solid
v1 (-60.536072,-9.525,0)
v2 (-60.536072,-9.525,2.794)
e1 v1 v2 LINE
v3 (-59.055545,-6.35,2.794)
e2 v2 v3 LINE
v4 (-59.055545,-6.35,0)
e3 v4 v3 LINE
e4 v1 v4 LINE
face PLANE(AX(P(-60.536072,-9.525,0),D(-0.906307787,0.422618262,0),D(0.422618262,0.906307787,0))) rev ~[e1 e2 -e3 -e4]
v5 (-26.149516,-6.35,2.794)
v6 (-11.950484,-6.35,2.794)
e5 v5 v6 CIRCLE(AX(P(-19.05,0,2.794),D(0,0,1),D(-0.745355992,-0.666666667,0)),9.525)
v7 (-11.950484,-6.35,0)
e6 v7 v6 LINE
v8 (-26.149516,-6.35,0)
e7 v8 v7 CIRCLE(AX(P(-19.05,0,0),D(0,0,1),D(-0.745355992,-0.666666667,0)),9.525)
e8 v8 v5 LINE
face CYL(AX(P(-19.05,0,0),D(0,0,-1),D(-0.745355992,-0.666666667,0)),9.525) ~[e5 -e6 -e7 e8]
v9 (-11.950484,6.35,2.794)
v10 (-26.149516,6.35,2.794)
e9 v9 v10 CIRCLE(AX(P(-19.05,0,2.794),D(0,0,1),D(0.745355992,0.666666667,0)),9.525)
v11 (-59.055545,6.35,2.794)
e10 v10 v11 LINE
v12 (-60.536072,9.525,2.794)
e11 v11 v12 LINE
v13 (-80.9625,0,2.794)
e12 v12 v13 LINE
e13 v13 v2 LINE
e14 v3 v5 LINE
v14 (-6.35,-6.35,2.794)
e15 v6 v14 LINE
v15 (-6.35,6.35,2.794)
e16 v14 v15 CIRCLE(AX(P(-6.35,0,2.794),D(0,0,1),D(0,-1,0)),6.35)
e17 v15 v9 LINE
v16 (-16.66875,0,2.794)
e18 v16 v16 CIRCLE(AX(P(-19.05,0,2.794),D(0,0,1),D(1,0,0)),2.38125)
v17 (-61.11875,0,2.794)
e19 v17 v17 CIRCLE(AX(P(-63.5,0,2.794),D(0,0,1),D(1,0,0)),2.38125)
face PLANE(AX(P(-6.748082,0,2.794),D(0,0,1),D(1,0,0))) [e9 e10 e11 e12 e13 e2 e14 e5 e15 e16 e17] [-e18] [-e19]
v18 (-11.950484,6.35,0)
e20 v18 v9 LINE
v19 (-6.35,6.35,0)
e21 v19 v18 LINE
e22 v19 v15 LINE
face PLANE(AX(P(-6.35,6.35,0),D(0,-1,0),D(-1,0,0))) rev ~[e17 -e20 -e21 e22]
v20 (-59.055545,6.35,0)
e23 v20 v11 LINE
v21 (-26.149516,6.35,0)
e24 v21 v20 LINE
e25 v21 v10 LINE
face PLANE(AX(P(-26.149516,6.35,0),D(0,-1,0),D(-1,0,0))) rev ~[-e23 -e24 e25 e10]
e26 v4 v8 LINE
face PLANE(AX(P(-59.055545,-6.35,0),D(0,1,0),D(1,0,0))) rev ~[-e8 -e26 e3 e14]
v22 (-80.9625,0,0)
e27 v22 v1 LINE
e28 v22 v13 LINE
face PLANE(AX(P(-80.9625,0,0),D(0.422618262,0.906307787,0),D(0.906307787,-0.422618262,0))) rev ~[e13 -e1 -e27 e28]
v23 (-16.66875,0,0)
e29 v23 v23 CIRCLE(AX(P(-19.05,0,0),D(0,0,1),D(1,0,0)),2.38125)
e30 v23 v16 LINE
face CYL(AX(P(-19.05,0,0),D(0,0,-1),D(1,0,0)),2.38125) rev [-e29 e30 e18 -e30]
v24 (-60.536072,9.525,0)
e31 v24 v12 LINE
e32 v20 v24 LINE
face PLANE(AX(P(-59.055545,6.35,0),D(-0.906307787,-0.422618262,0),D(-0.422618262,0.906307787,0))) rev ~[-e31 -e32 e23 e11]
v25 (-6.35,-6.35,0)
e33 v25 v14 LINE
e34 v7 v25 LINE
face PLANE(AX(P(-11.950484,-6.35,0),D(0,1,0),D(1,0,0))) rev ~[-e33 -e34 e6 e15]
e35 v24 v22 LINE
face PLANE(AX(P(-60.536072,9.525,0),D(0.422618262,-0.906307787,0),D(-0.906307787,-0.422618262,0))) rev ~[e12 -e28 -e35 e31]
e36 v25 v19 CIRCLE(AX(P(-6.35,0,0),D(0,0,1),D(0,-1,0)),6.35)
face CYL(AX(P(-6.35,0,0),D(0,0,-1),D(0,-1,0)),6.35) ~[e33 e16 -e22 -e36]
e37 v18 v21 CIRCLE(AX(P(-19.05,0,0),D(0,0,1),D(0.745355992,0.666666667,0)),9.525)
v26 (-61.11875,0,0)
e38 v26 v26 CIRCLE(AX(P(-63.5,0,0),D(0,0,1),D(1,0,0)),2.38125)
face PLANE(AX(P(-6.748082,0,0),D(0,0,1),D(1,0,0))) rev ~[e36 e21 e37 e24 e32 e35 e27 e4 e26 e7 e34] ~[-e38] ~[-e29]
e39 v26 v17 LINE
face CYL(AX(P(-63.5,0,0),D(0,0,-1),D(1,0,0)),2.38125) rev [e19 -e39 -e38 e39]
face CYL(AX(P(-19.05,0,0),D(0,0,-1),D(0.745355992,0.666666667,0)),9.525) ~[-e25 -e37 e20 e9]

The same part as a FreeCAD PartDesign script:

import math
import FreeCAD as App
import Part
import Sketcher

V = App.Vector
Q = App.Units.Quantity

doc = App.newDocument("Part")
body = doc.addObject("PartDesign::Body", "Body")

# Sketch on XY plane
sketch1 = body.newObject("Sketcher::SketchObject", "Sketch")
sketch1.AttachmentSupport = (doc.getObject("XY_Plane"), [""])
sketch1.MapMode = "FlatFace"
sketch1.addGeometry([
    Part.ArcOfCircle(Part.Circle(V(-6.35, 0, 0), V(0, 0, 1), 6.35), math.radians(-90), math.radians(90)),  # 0
    Part.LineSegment(V(-6.35, 6.35, 0), V(-11.950484, 6.35, 0)),  # 1
    Part.ArcOfCircle(Part.Circle(V(-19.05, 0, 0), V(0, 0, 1), 9.525), math.radians(41.810315), math.radians(138.189685)),  # 2
    Part.LineSegment(V(-26.149516, 6.35, 0), V(-59.055545, 6.35, 0)),  # 3
    Part.LineSegment(V(-59.055545, 6.35, 0), V(-60.536072, 9.525, 0)),  # 4
    Part.LineSegment(V(-60.536072, 9.525, 0), V(-80.9625, 0, 0)),  # 5
    Part.LineSegment(V(-80.9625, 0, 0), V(-60.536072, -9.525, 0)),  # 6
    Part.LineSegment(V(-60.536072, -9.525, 0), V(-59.055545, -6.35, 0)),  # 7
    Part.LineSegment(V(-59.055545, -6.35, 0), V(-26.149516, -6.35, 0)),  # 8
    Part.ArcOfCircle(Part.Circle(V(-19.05, 0, 0), V(0, 0, 1), 9.525), math.radians(-138.189685), math.radians(-41.810315)),  # 9
    Part.LineSegment(V(-11.950484, -6.35, 0), V(-6.35, -6.35, 0)),  # 10
    Part.Circle(V(-63.5, 0, 0), V(0, 0, 1), 2.38125),  # 11
    Part.Circle(V(-19.05, 0, 0), V(0, 0, 1), 2.38125),  # 12
], False)
sketch1.addConstraint([
    Sketcher.Constraint("Tangent", 0, 2, 1, 1),
    Sketcher.Constraint("Coincident", 1, 2, 2, 1),
    Sketcher.Constraint("Coincident", 2, 2, 3, 1),
    Sketcher.Constraint("Coincident", 3, 2, 4, 1),
    Sketcher.Constraint("Coincident", 4, 2, 5, 1),
    Sketcher.Constraint("Coincident", 5, 2, 6, 1),
    Sketcher.Constraint("Coincident", 6, 2, 7, 1),
    Sketcher.Constraint("Coincident", 7, 2, 8, 1),
    Sketcher.Constraint("Coincident", 8, 2, 9, 1),
    Sketcher.Constraint("Coincident", 9, 2, 10, 1),
    Sketcher.Constraint("Tangent", 10, 2, 0, 1),
    Sketcher.Constraint("Horizontal", 1),
    Sketcher.Constraint("Horizontal", 3),
    Sketcher.Constraint("Horizontal", 8),
    Sketcher.Constraint("Horizontal", 10),
    Sketcher.Constraint("Coincident", 9, 3, 2, 3),
    Sketcher.Constraint("Coincident", 12, 3, 2, 3),
    Sketcher.Constraint("Equal", 2, 9),
    Sketcher.Constraint("Equal", 11, 12),
    Sketcher.Constraint("Symmetric", 4, 2, 6, 2, -1),
    Sketcher.Constraint("Symmetric", 3, 2, 7, 2, -1),
    Sketcher.Constraint("Symmetric", 1, 2, 9, 2, -1),
    Sketcher.Constraint("PointOnObject", 11, 3, -1),
    Sketcher.Constraint("PointOnObject", 5, 2, -1),
    Sketcher.Constraint("Perpendicular", 4, 5),
    Sketcher.Constraint("Horizontal", 1, 2, 2, 2),
    Sketcher.Constraint("Radius", 0, Q("0.25 in")),
    Sketcher.Constraint("Diameter", 11, Q("0.1875 in")),
    Sketcher.Constraint("Angle", 4, Q("115 deg")),
    Sketcher.Constraint("Radius", 2, Q("0.375 in")),
    Sketcher.Constraint("DistanceX", 11, 3, -1, 1, Q("2.5 in")),
    Sketcher.Constraint("DistanceX", 2, 3, 0, 3, Q("0.5 in")),
    Sketcher.Constraint("DistanceX", 0, 3, -1, 1, Q("0.25 in")),
    Sketcher.Constraint("DistanceY", 6, 2, 4, 2, Q("0.75 in")),
    Sketcher.Constraint("DistanceX", 5, 2, -1, 1, Q("3.1875 in")),
])
pad1 = body.newObject("PartDesign::Pad", "Pad")
pad1.Profile = sketch1
pad1.Length = Q("0.11 in")

doc.recompute()
